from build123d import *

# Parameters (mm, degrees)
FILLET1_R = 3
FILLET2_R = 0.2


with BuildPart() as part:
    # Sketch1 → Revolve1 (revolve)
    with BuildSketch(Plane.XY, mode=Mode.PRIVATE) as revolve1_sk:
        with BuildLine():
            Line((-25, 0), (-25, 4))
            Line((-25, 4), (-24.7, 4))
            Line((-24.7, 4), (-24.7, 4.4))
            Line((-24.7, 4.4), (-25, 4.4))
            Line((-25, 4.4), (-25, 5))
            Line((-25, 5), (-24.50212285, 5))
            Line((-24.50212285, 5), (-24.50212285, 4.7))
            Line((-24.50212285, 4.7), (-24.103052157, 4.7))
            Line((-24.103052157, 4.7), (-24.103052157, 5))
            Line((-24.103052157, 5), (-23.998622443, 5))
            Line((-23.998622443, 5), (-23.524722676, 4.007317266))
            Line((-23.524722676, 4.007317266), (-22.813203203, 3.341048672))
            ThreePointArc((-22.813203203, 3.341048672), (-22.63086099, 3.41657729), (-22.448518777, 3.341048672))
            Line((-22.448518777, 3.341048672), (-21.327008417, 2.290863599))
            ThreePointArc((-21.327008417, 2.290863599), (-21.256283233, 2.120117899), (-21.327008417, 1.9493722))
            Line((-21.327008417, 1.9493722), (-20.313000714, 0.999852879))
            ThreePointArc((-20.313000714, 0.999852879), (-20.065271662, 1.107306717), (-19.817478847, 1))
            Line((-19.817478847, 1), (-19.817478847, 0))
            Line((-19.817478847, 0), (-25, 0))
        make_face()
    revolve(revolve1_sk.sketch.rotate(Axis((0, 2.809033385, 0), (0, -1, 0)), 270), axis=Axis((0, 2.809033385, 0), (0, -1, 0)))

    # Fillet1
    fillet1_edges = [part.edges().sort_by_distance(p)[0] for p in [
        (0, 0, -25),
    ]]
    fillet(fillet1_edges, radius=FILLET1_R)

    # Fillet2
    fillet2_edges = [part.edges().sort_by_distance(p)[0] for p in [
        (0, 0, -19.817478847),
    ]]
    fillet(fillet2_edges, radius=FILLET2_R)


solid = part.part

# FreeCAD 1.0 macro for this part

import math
import FreeCAD as App
import Part
import Sketcher
from FreeCAD import Vector


def edges_at(feature, points):
    """Names of the edges that pass closest to the given points."""
    edges = feature.Shape.Edges
    near = lambda p: min(range(len(edges)), key=lambda i: edges[i].distToShape(Part.Vertex(*p))[0])
    return sorted({f"Edge{near(p) + 1}" for p in points})

doc = App.newDocument("Part")
body = doc.addObject("PartDesign::Body", "Body")

# Sketch on XY plane
sketch1 = doc.addObject("Sketcher::SketchObject", "Sketch")
body.addObject(sketch1)
sketch1.AttachmentSupport = (doc.XY_Plane, [""])
sketch1.MapMode = "FlatFace"
sketch1.addGeometry([
    Part.LineSegment(Vector(-25, 4, 0), Vector(-25, 0, 0)),  # 0
    Part.LineSegment(Vector(-25, 0, 0), Vector(-19.82, 0, 0)),  # 1
    Part.LineSegment(Vector(-19.82, 0, 0), Vector(-19.82, 1, 0)),  # 2
    Part.ArcOfCircle(Part.Circle(Vector(-20.07, 0.77, 0), Vector(0, 0, 1), 0.34), math.radians(43), math.radians(137)),  # 3
    Part.LineSegment(Vector(-20.31, 1, 0), Vector(-21.33, 1.95, 0)),  # 4
    Part.ArcOfCircle(Part.Circle(Vector(-21.5, 2.12, 0), Vector(0, 0, 1), 0.24), math.radians(-45), math.radians(45)),  # 5
    Part.LineSegment(Vector(-21.33, 2.29, 0), Vector(-22.45, 3.34, 0)),  # 6
    Part.ArcOfCircle(Part.Circle(Vector(-22.63, 3.16, 0), Vector(0, 0, 1), 0.26), math.radians(45), math.radians(135)),  # 7
    Part.LineSegment(Vector(-22.81, 3.34, 0), Vector(-23.52, 4.01, 0)),  # 8
    Part.LineSegment(Vector(-23.52, 4.01, 0), Vector(-24, 5, 0)),  # 9
    Part.LineSegment(Vector(-24, 5, 0), Vector(-24.1, 5, 0)),  # 10
    Part.LineSegment(Vector(-24.1, 5, 0), Vector(-24.1, 4.7, 0)),  # 11
    Part.LineSegment(Vector(-24.1, 4.7, 0), Vector(-24.5, 4.7, 0)),  # 12
    Part.LineSegment(Vector(-24.5, 4.7, 0), Vector(-24.5, 5, 0)),  # 13
    Part.LineSegment(Vector(-24.5, 5, 0), Vector(-25, 5, 0)),  # 14
    Part.LineSegment(Vector(-25, 5, 0), Vector(-25, 4.4, 0)),  # 15
    Part.LineSegment(Vector(-25, 4.4, 0), Vector(-24.7, 4.4, 0)),  # 16
    Part.LineSegment(Vector(-24.7, 4.4, 0), Vector(-24.7, 4, 0)),  # 17
    Part.LineSegment(Vector(-24.7, 4, 0), Vector(-25, 4, 0)),  # 18
], False)
sketch1.addConstraint([
    Sketcher.Constraint("Coincident", 0, 2, 1, 1),
    Sketcher.Constraint("Coincident", 1, 2, 2, 1),
    Sketcher.Constraint("Coincident", 2, 2, 3, 1),
    Sketcher.Constraint("Coincident", 3, 2, 4, 1),
    Sketcher.Constraint("Coincident", 4, 2, 5, 1),
    Sketcher.Constraint("Coincident", 5, 2, 6, 1),
    Sketcher.Constraint("Coincident", 6, 2, 7, 1),
    Sketcher.Constraint("Coincident", 7, 2, 8, 1),
    Sketcher.Constraint("Coincident", 8, 2, 9, 1),
    Sketcher.Constraint("Coincident", 9, 2, 10, 1),
    Sketcher.Constraint("Coincident", 10, 2, 11, 1),
    Sketcher.Constraint("Coincident", 11, 2, 12, 1),
    Sketcher.Constraint("Coincident", 12, 2, 13, 1),
    Sketcher.Constraint("Coincident", 13, 2, 14, 1),
    Sketcher.Constraint("Coincident", 14, 2, 15, 1),
    Sketcher.Constraint("Coincident", 15, 2, 16, 1),
    Sketcher.Constraint("Coincident", 16, 2, 17, 1),
    Sketcher.Constraint("Coincident", 17, 2, 18, 1),
    Sketcher.Constraint("Coincident", 18, 2, 0, 1),
    Sketcher.Constraint("Vertical", 0),
    Sketcher.Constraint("Horizontal", 1),
    Sketcher.Constraint("Vertical", 2),
    Sketcher.Constraint("Horizontal", 10),
    Sketcher.Constraint("Vertical", 11),
    Sketcher.Constraint("Horizontal", 12),
    Sketcher.Constraint("Vertical", 13),
    Sketcher.Constraint("Horizontal", 14),
    Sketcher.Constraint("Vertical", 15),
    Sketcher.Constraint("Horizontal", 16),
    Sketcher.Constraint("Vertical", 17),
    Sketcher.Constraint("Horizontal", 18),
    Sketcher.Constraint("PointOnObject", 0, 2, -1),
    Sketcher.Constraint("Parallel", 4, 6),
    Sketcher.Constraint("Parallel", 6, 8),
    Sketcher.Constraint("Horizontal", 6, 2, 7, 2),
    Sketcher.Constraint("Horizontal", 10, 2, 13, 2),
    Sketcher.Constraint("Vertical", 4, 2, 5, 2),
    Sketcher.Constraint("Vertical", 0, 2, 14, 2),
    Sketcher.Constraint("Equal", 18, 11),
    Sketcher.Constraint("DistanceY", 0, 2, 0, 1, 4.0),
    Sketcher.Constraint("DistanceY", 2, 1, 2, 2, 1.0),
    Sketcher.Constraint("DistanceX", 16, 1, 16, 2, 0.3),
    Sketcher.Constraint("DistanceY", 15, 2, 15, 1, 0.6),
    Sketcher.Constraint("DistanceY", 17, 2, 17, 1, 0.4),
    Sketcher.Constraint("DistanceX", 0, 2, -1, 1, 25.0),
    Sketcher.Constraint("Distance", 9, 1.1),
    Sketcher.Constraint("Radius", 5, 0.241471),
    Sketcher.Constraint("Radius", 7, 0.257871),
    Sketcher.Constraint("DistanceX", 3, 2, -1, 1, 20.313001),
    Sketcher.Constraint("Radius", 3, 0.339522),
    Sketcher.Constraint("DistanceX", 1, 1, 1, 2, 5.182521),
    Sketcher.Constraint("DistanceX", 10, 2, 10, 1, 0.10443),
    Sketcher.Constraint("DistanceX", 12, 2, 12, 1, 0.399071),
    Sketcher.Constraint("DistanceY", 5, 3, 8, 2, 1.887199),
    Sketcher.Constraint("DistanceX", 9, 2, 8, 2, 0.4739),
    Sketcher.Constraint("Distance", 4, 1.389172),
    Sketcher.Constraint("Distance", 6, 1.536449),
    Sketcher.Constraint("Distance", 8, 0.974769),
    Sketcher.Constraint("DistanceX", 14, 2, 14, 1, 0.497877),
    Sketcher.Constraint("DistanceX", 3, 3, -1, 1, 20.065171),
])
revolution = doc.addObject("PartDesign::Revolution", "Revolution")
body.addObject(revolution)
revolution.Profile = sketch1
revolution.ReferenceAxis = (sketch1, ["V_Axis"])
revolution.Angle = 360
doc.recompute()

fillet = doc.addObject("PartDesign::Fillet", "Fillet")
body.addObject(fillet)
fillet.Base = (revolution, edges_at(revolution, [(0, 0, -25)]))
fillet.Radius = 3
doc.recompute()

fillet2 = doc.addObject("PartDesign::Fillet", "Fillet001")
body.addObject(fillet2)
fillet2.Base = (fillet, edges_at(fillet, [(0, 0, -19.817)]))
fillet2.Radius = 0.2

doc.recompute()
